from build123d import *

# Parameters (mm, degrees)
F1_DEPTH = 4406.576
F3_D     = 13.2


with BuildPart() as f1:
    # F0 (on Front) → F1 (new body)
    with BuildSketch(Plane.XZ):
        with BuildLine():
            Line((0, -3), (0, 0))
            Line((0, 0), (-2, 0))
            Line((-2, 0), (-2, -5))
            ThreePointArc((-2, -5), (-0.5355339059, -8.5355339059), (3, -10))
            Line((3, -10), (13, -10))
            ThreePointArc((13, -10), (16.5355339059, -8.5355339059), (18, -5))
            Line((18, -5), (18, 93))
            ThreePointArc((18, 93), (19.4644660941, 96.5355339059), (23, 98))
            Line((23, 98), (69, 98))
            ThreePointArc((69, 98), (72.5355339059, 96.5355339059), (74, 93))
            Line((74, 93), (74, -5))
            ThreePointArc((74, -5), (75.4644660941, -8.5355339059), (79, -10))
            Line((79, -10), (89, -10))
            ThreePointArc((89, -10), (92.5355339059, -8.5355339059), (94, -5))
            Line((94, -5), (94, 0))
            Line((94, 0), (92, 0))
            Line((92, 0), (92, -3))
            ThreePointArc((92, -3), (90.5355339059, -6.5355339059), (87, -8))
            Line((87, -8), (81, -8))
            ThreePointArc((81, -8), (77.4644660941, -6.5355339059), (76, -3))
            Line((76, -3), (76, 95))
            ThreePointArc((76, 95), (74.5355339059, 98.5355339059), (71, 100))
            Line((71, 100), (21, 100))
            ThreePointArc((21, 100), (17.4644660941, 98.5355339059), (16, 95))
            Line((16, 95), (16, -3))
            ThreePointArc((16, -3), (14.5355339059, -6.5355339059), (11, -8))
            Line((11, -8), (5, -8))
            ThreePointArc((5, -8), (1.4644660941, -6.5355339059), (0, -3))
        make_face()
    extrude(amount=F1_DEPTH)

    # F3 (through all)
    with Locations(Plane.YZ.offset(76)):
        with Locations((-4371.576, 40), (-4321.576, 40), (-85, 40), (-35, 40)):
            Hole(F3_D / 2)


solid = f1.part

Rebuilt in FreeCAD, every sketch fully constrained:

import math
import FreeCAD as App
import Part
import Sketcher
from FreeCAD import Vector
Q = App.Units.Quantity

doc = App.newDocument("Part")
body = doc.addObject("PartDesign::Body", "Body")

sketch1 = body.newObject("Sketcher::SketchObject", "Sketch")
sketch1.AttachmentSupport = (doc.getObject("XZ_Plane"), [""])
sketch1.MapMode = "FlatFace"
sketch1.addGeometry(Part.LineSegment(Vector(0, -3, 0), Vector(0, 0, 0)), False)
sketch1.addGeometry(Part.LineSegment(Vector(0, 0, 0), Vector(-2, 0, 0)), False)
sketch1.addGeometry(Part.LineSegment(Vector(-2, 0, 0), Vector(-2, -5, 0)), False)
sketch1.addGeometry(Part.ArcOfCircle(Part.Circle(Vector(3, -5, 0), Vector(0, 0, 1), 5), math.radians(180), math.radians(270)), False)
sketch1.addGeometry(Part.LineSegment(Vector(3, -10, 0), Vector(13, -10, 0)), False)
sketch1.addGeometry(Part.ArcOfCircle(Part.Circle(Vector(13, -5, 0), Vector(0, 0, 1), 5), math.radians(-90), math.radians(0)), False)
sketch1.addGeometry(Part.LineSegment(Vector(18, -5, 0), Vector(18, 93, 0)), False)
sketch1.addGeometry(Part.ArcOfCircle(Part.Circle(Vector(23, 93, 0), Vector(0, 0, 1), 5), math.radians(90), math.radians(180)), False)
sketch1.addGeometry(Part.LineSegment(Vector(23, 98, 0), Vector(69, 98, 0)), False)
sketch1.addGeometry(Part.ArcOfCircle(Part.Circle(Vector(69, 93, 0), Vector(0, 0, 1), 5), math.radians(0), math.radians(90)), False)
sketch1.addGeometry(Part.LineSegment(Vector(74, 93, 0), Vector(74, -5, 0)), False)
sketch1.addGeometry(Part.ArcOfCircle(Part.Circle(Vector(79, -5, 0), Vector(0, 0, 1), 5), math.radians(180), math.radians(270)), False)
sketch1.addGeometry(Part.LineSegment(Vector(79, -10, 0), Vector(89, -10, 0)), False)
sketch1.addGeometry(Part.ArcOfCircle(Part.Circle(Vector(89, -5, 0), Vector(0, 0, 1), 5), math.radians(-90), math.radians(0)), False)
sketch1.addGeometry(Part.LineSegment(Vector(94, -5, 0), Vector(94, 0, 0)), False)
sketch1.addGeometry(Part.LineSegment(Vector(94, 0, 0), Vector(92, 0, 0)), False)
sketch1.addGeometry(Part.LineSegment(Vector(92, 0, 0), Vector(92, -3, 0)), False)
sketch1.addGeometry(Part.ArcOfCircle(Part.Circle(Vector(87, -3, 0), Vector(0, 0, 1), 5), math.radians(-90), math.radians(0)), False)
sketch1.addGeometry(Part.LineSegment(Vector(87, -8, 0), Vector(81, -8, 0)), False)
sketch1.addGeometry(Part.ArcOfCircle(Part.Circle(Vector(81, -3, 0), Vector(0, 0, 1), 5), math.radians(180), math.radians(270)), False)
sketch1.addGeometry(Part.LineSegment(Vector(76, -3, 0), Vector(76, 95, 0)), False)
sketch1.addGeometry(Part.ArcOfCircle(Part.Circle(Vector(71, 95, 0), Vector(0, 0, 1), 5), math.radians(0), math.radians(90)), False)
sketch1.addGeometry(Part.LineSegment(Vector(71, 100, 0), Vector(21, 100, 0)), False)
sketch1.addGeometry(Part.ArcOfCircle(Part.Circle(Vector(21, 95, 0), Vector(0, 0, 1), 5), math.radians(90), math.radians(180)), False)
sketch1.addGeometry(Part.LineSegment(Vector(16, 95, 0), Vector(16, -3, 0)), False)
sketch1.addGeometry(Part.ArcOfCircle(Part.Circle(Vector(11, -3, 0), Vector(0, 0, 1), 5), math.radians(-90), math.radians(0)), False)
sketch1.addGeometry(Part.LineSegment(Vector(11, -8, 0), Vector(5, -8, 0)), False)
sketch1.addGeometry(Part.ArcOfCircle(Part.Circle(Vector(5, -3, 0), Vector(0, 0, 1), 5), math.radians(180), math.radians(270)), False)
sketch1.addConstraint(Sketcher.Constraint("Coincident", 0, 2, 1, 1))
sketch1.addConstraint(Sketcher.Constraint("Coincident", 1, 2, 2, 1))
sketch1.addConstraint(Sketcher.Constraint("Tangent", 2, 2, 3, 1))
sketch1.addConstraint(Sketcher.Constraint("Tangent", 3, 2, 4, 1))
sketch1.addConstraint(Sketcher.Constraint("Tangent", 4, 2, 5, 1))
sketch1.addConstraint(Sketcher.Constraint("Tangent", 5, 2, 6, 1))
sketch1.addConstraint(Sketcher.Constraint("Tangent", 6, 2, 7, 2))
sketch1.addConstraint(Sketcher.Constraint("Tangent", 7, 1, 8, 1))
sketch1.addConstraint(Sketcher.Constraint("Tangent", 8, 2, 9, 2))
sketch1.addConstraint(Sketcher.Constraint("Tangent", 9, 1, 10, 1))
sketch1.addConstraint(Sketcher.Constraint("Tangent", 10, 2, 11, 1))
sketch1.addConstraint(Sketcher.Constraint("Tangent", 11, 2, 12, 1))
sketch1.addConstraint(Sketcher.Constraint("Tangent", 12, 2, 13, 1))
sketch1.addConstraint(Sketcher.Constraint("Tangent", 13, 2, 14, 1))
sketch1.addConstraint(Sketcher.Constraint("Coincident", 14, 2, 15, 1))
sketch1.addConstraint(Sketcher.Constraint("Coincident", 15, 2, 16, 1))
sketch1.addConstraint(Sketcher.Constraint("Tangent", 16, 2, 17, 2))
sketch1.addConstraint(Sketcher.Constraint("Tangent", 17, 1, 18, 1))
sketch1.addConstraint(Sketcher.Constraint("Tangent", 18, 2, 19, 2))
sketch1.addConstraint(Sketcher.Constraint("Tangent", 19, 1, 20, 1))
sketch1.addConstraint(Sketcher.Constraint("Tangent", 20, 2, 21, 1))
sketch1.addConstraint(Sketcher.Constraint("Tangent", 21, 2, 22, 1))
sketch1.addConstraint(Sketcher.Constraint("Tangent", 22, 2, 23, 1))
sketch1.addConstraint(Sketcher.Constraint("Tangent", 23, 2, 24, 1))
sketch1.addConstraint(Sketcher.Constraint("Tangent", 24, 2, 25, 2))
sketch1.addConstraint(Sketcher.Constraint("Tangent", 25, 1, 26, 1))
sketch1.addConstraint(Sketcher.Constraint("Tangent", 26, 2, 27, 2))
sketch1.addConstraint(Sketcher.Constraint("Tangent", 27, 1, 0, 1))
sketch1.addConstraint(Sketcher.Constraint("Vertical", 0))
sketch1.addConstraint(Sketcher.Constraint("Horizontal", 1))
sketch1.addConstraint(Sketcher.Constraint("Vertical", 2))
sketch1.addConstraint(Sketcher.Constraint("Horizontal", 4))
sketch1.addConstraint(Sketcher.Constraint("Vertical", 6))
sketch1.addConstraint(Sketcher.Constraint("Horizontal", 8))
sketch1.addConstraint(Sketcher.Constraint("Vertical", 10))
sketch1.addConstraint(Sketcher.Constraint("Horizontal", 12))
sketch1.addConstraint(Sketcher.Constraint("Vertical", 14))
sketch1.addConstraint(Sketcher.Constraint("Horizontal", 15))
sketch1.addConstraint(Sketcher.Constraint("Vertical", 16))
sketch1.addConstraint(Sketcher.Constraint("Horizontal", 18))
sketch1.addConstraint(Sketcher.Constraint("Vertical", 20))
sketch1.addConstraint(Sketcher.Constraint("Horizontal", 22))
sketch1.addConstraint(Sketcher.Constraint("Vertical", 24))
sketch1.addConstraint(Sketcher.Constraint("Horizontal", 26))
sketch1.addConstraint(Sketcher.Constraint("Coincident", 0, 2, -1, 1))
sketch1.addConstraint(Sketcher.Constraint("Equal", 3, 5))
sketch1.addConstraint(Sketcher.Constraint("Equal", 5, 7))
sketch1.addConstraint(Sketcher.Constraint("Equal", 7, 9))
sketch1.addConstraint(Sketcher.Constraint("Equal", 9, 11))
sketch1.addConstraint(Sketcher.Constraint("Equal", 11, 13))
sketch1.addConstraint(Sketcher.Constraint("Equal", 13, 17))
sketch1.addConstraint(Sketcher.Constraint("Equal", 17, 19))
sketch1.addConstraint(Sketcher.Constraint("Equal", 19, 21))
sketch1.addConstraint(Sketcher.Constraint("Equal", 21, 23))
sketch1.addConstraint(Sketcher.Constraint("Equal", 23, 25))
sketch1.addConstraint(Sketcher.Constraint("Equal", 25, 27))
sketch1.addConstraint(Sketcher.Constraint("PointOnObject", 14, 2, -1))
sketch1.addConstraint(Sketcher.Constraint("Horizontal", 5, 3, 11, 3))
sketch1.addConstraint(Sketcher.Constraint("Horizontal", 19, 3, 25, 3))
sketch1.addConstraint(Sketcher.Constraint("Equal", 4, 12))
sketch1.addConstraint(Sketcher.Constraint("Equal", 1, 15))
sketch1.addConstraint(Sketcher.Constraint("Equal", 18, 26))
sketch1.addConstraint(Sketcher.Constraint("Equal", 10, 20))
sketch1.addConstraint(Sketcher.Constraint("Radius", 3, Q("5 mm")))
sketch1.addConstraint(Sketcher.Constraint("DistanceX", 1, 2, 1, 1, Q("2 mm")))
sketch1.addConstraint(Sketcher.Constraint("DistanceX", 4, 1, 4, 2, Q("10 mm")))
sketch1.addConstraint(Sketcher.Constraint("DistanceX", 8, 1, 8, 2, Q("46 mm")))
sketch1.addConstraint(Sketcher.Constraint("DistanceX", 18, 2, 18, 1, Q("6 mm")))
sketch1.addConstraint(Sketcher.Constraint("DistanceY", 0, 1, 0, 2, Q("3 mm")))
sketch1.addConstraint(Sketcher.Constraint("DistanceY", 2, 2, 2, 1, Q("5 mm")))
sketch1.addConstraint(Sketcher.Constraint("DistanceY", 6, 1, 6, 2, Q("98 mm")))
pad1 = body.newObject("PartDesign::Pad", "Pad")
pad1.Profile = sketch1
pad1.Length = 4406.576

sketch2 = body.newObject("Sketcher::SketchObject", "Sketch001")
sketch2.AttachmentSupport = (doc.getObject("YZ_Plane"), [""])
sketch2.MapMode = "FlatFace"
sketch2.AttachmentOffset = App.Placement(Vector(0, 0, 76), App.Rotation())
sketch2.addGeometry(Part.Circle(Vector(-4371.576, 40, 0), Vector(0, 0, 1), 6.6), False)
sketch2.addGeometry(Part.Circle(Vector(-4321.576, 40, 0), Vector(0, 0, 1), 6.6), False)
sketch2.addGeometry(Part.Circle(Vector(-85, 40, 0), Vector(0, 0, 1), 6.6), False)
sketch2.addGeometry(Part.Circle(Vector(-35, 40, 0), Vector(0, 0, 1), 6.6), False)
sketch2.addConstraint(Sketcher.Constraint("Equal", 0, 1))
sketch2.addConstraint(Sketcher.Constraint("Equal", 1, 2))
sketch2.addConstraint(Sketcher.Constraint("Equal", 2, 3))
sketch2.addConstraint(Sketcher.Constraint("Horizontal", 0, 3, 1, 3))
sketch2.addConstraint(Sketcher.Constraint("Horizontal", 1, 3, 2, 3))
sketch2.addConstraint(Sketcher.Constraint("Horizontal", 2, 3, 3, 3))
sketch2.addConstraint(Sketcher.Constraint("Diameter", 0, Q("13.2 mm")))
sketch2.addConstraint(Sketcher.Constraint("DistanceY", -1, 1, 0, 3, Q("40 mm")))
sketch2.addConstraint(Sketcher.Constraint("DistanceX", 2, 3, -1, 1, Q("85 mm")))
sketch2.addConstraint(Sketcher.Constraint("DistanceX", 3, 3, -1, 1, Q("35 mm")))
sketch2.addConstraint(Sketcher.Constraint("DistanceX", 0, 3, 1, 3, Q("50 mm")))
sketch2.addConstraint(Sketcher.Constraint("DistanceX", 0, 3, -1, 1, Q("4371.576 mm")))
doc.recompute()
hole = body.newObject("PartDesign::Hole", "Hole")
hole.Profile = sketch2
hole.ThreadType = "None"
hole.Diameter = 13.2
hole.DepthType = "ThroughAll"

doc.recompute()
